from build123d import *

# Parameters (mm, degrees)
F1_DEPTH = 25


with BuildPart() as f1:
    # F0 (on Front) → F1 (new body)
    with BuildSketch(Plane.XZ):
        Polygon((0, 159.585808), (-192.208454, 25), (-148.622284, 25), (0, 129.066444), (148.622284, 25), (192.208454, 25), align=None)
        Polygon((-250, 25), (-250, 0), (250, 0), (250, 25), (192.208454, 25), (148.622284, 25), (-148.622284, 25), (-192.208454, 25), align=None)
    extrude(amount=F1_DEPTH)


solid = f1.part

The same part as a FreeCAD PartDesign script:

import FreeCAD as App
import Part
import Sketcher

V = App.Vector
Q = App.Units.Quantity

doc = App.newDocument("Part")
body = doc.addObject("PartDesign::Body", "Body")

# Sketch on XZ plane
sketch1 = body.newObject("Sketcher::SketchObject", "Sketch")
sketch1.AttachmentSupport = (doc.getObject("XZ_Plane"), [""])
sketch1.MapMode = "FlatFace"
sketch1.addGeometry([
    Part.LineSegment(V(0, 160, 0), V(-192, 25, 0)),  # 0
    Part.LineSegment(V(-192, 25, 0), V(-250, 25, 0)),  # 1
    Part.LineSegment(V(-250, 25, 0), V(-250, 0, 0)),  # 2
    Part.LineSegment(V(-250, 0, 0), V(250, 0, 0)),  # 3
    Part.LineSegment(V(250, 0, 0), V(250, 25, 0)),  # 4
    Part.LineSegment(V(250, 25, 0), V(192, 25, 0)),  # 5
    Part.LineSegment(V(192, 25, 0), V(0, 160, 0)),  # 6
    Part.LineSegment(V(-149, 25, 0), V(0, 129, 0)),  # 7
    Part.LineSegment(V(0, 129, 0), V(149, 25, 0)),  # 8
    Part.LineSegment(V(149, 25, 0), V(-149, 25, 0)),  # 9
], False)
sketch1.addConstraint([
    Sketcher.Constraint("Coincident", 0, 2, 1, 1),
    Sketcher.Constraint("Coincident", 1, 2, 2, 1),
    Sketcher.Constraint("Coincident", 2, 2, 3, 1),
    Sketcher.Constraint("Coincident", 3, 2, 4, 1),
    Sketcher.Constraint("Coincident", 4, 2, 5, 1),
    Sketcher.Constraint("Coincident", 5, 2, 6, 1),
    Sketcher.Constraint("Coincident", 6, 2, 0, 1),
    Sketcher.Constraint("Coincident", 7, 2, 8, 1),
    Sketcher.Constraint("Coincident", 8, 2, 9, 1),
    Sketcher.Constraint("Coincident", 9, 2, 7, 1),
    Sketcher.Constraint("Horizontal", 1),
    Sketcher.Constraint("Vertical", 2),
    Sketcher.Constraint("Horizontal", 3),
    Sketcher.Constraint("Vertical", 4),
    Sketcher.Constraint("Horizontal", 5),
    Sketcher.Constraint("Horizontal", 9),
    Sketcher.Constraint("Symmetric", 2, 2, 3, 2, -1, 1),
    Sketcher.Constraint("Symmetric", 0, 2, 5, 2, -2),
    Sketcher.Constraint("PointOnObject", 6, 2, -2),
    Sketcher.Constraint("PointOnObject", 7, 2, -2),
    Sketcher.Constraint("Parallel", 0, 7),
    Sketcher.Constraint("Parallel", 6, 8),
    Sketcher.Constraint("Horizontal", 5, 2, 8, 2),
    Sketcher.Constraint("DistanceX", 3, 1, 3, 2, 500.0),
    Sketcher.Constraint("DistanceY", 2, 2, 2, 1, 25.0),
    Sketcher.Constraint("Angle", 0, Q("-145 deg")),
    Sketcher.Constraint("DistanceX", 9, 2, 9, 1, 297.244568),
    Sketcher.Constraint("DistanceX", 1, 2, 1, 1, 57.791546),
])
pad1 = body.newObject("PartDesign::Pad", "Pad")
pad1.Profile = sketch1
pad1.Length = 25

doc.recompute()
